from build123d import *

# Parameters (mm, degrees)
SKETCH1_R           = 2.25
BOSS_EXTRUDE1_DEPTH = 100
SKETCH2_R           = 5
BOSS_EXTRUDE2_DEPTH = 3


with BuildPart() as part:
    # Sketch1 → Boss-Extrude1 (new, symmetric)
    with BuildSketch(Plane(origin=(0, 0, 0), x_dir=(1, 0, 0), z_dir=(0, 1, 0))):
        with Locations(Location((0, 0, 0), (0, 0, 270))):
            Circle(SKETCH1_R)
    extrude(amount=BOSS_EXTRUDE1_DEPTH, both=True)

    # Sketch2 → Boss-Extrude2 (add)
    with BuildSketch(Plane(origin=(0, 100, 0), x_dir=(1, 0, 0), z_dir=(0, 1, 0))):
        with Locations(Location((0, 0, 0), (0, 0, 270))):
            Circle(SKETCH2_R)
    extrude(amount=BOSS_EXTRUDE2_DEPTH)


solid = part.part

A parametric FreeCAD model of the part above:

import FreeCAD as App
import Part
import Sketcher

V = App.Vector

doc = App.newDocument("Part")
params = doc.addObject("Spreadsheet::Sheet", "Params")
for row, (alias, value) in enumerate([
    ("sketch1_diameter", "4.5 mm"),
    ("pad1_length", "200 mm"),
    ("sketch2_diameter", "10 mm"),
    ("pad2_length", "3 mm"),
], start=1):
    params.set(f"A{row}", alias)
    params.set(f"B{row}", "=" + value)
    params.setAlias(f"B{row}", alias)

body = doc.addObject("PartDesign::Body", "Body")

# Sketch on XZ plane
sketch1 = doc.addObject("Sketcher::SketchObject", "Sketch")
body.addObject(sketch1)
sketch1.AttachmentSupport = (doc.XZ_Plane, [""])
sketch1.MapMode = "FlatFace"
sketch1.addGeometry(Part.Circle(V(0, 0, 0), V(0, 0, 1), 2.25), False)
sketch1.addConstraint(Sketcher.Constraint("Coincident", 0, 3, -1, 1))
sketch1.addConstraint(Sketcher.Constraint("Diameter", 0, 4.5))
sketch1.setExpression("Constraints[1]", "Params.sketch1_diameter")
pad1 = doc.addObject("PartDesign::Pad", "Pad")
body.addObject(pad1)
pad1.Profile = sketch1
pad1.setExpression("Length", "Params.pad1_length")
pad1.Midplane = True

# Sketch on XZ plane
sketch2 = doc.addObject("Sketcher::SketchObject", "Sketch001")
body.addObject(sketch2)
sketch2.AttachmentSupport = (doc.XZ_Plane, [""])
sketch2.MapMode = "FlatFace"
sketch2.AttachmentOffset = App.Placement(V(0, 0, -100), App.Rotation())
sketch2.addGeometry(Part.Circle(V(0, 0, 0), V(0, 0, 1), 5), False)
sketch2.addConstraint(Sketcher.Constraint("Coincident", 0, 3, -1, 1))
sketch2.addConstraint(Sketcher.Constraint("Diameter", 0, 10.0))
sketch2.setExpression("Constraints[1]", "Params.sketch2_diameter")
pad2 = doc.addObject("PartDesign::Pad", "Pad001")
body.addObject(pad2)
pad2.Profile = sketch2
pad2.setExpression("Length", "Params.pad2_length")
pad2.Reversed = True

doc.recompute()
